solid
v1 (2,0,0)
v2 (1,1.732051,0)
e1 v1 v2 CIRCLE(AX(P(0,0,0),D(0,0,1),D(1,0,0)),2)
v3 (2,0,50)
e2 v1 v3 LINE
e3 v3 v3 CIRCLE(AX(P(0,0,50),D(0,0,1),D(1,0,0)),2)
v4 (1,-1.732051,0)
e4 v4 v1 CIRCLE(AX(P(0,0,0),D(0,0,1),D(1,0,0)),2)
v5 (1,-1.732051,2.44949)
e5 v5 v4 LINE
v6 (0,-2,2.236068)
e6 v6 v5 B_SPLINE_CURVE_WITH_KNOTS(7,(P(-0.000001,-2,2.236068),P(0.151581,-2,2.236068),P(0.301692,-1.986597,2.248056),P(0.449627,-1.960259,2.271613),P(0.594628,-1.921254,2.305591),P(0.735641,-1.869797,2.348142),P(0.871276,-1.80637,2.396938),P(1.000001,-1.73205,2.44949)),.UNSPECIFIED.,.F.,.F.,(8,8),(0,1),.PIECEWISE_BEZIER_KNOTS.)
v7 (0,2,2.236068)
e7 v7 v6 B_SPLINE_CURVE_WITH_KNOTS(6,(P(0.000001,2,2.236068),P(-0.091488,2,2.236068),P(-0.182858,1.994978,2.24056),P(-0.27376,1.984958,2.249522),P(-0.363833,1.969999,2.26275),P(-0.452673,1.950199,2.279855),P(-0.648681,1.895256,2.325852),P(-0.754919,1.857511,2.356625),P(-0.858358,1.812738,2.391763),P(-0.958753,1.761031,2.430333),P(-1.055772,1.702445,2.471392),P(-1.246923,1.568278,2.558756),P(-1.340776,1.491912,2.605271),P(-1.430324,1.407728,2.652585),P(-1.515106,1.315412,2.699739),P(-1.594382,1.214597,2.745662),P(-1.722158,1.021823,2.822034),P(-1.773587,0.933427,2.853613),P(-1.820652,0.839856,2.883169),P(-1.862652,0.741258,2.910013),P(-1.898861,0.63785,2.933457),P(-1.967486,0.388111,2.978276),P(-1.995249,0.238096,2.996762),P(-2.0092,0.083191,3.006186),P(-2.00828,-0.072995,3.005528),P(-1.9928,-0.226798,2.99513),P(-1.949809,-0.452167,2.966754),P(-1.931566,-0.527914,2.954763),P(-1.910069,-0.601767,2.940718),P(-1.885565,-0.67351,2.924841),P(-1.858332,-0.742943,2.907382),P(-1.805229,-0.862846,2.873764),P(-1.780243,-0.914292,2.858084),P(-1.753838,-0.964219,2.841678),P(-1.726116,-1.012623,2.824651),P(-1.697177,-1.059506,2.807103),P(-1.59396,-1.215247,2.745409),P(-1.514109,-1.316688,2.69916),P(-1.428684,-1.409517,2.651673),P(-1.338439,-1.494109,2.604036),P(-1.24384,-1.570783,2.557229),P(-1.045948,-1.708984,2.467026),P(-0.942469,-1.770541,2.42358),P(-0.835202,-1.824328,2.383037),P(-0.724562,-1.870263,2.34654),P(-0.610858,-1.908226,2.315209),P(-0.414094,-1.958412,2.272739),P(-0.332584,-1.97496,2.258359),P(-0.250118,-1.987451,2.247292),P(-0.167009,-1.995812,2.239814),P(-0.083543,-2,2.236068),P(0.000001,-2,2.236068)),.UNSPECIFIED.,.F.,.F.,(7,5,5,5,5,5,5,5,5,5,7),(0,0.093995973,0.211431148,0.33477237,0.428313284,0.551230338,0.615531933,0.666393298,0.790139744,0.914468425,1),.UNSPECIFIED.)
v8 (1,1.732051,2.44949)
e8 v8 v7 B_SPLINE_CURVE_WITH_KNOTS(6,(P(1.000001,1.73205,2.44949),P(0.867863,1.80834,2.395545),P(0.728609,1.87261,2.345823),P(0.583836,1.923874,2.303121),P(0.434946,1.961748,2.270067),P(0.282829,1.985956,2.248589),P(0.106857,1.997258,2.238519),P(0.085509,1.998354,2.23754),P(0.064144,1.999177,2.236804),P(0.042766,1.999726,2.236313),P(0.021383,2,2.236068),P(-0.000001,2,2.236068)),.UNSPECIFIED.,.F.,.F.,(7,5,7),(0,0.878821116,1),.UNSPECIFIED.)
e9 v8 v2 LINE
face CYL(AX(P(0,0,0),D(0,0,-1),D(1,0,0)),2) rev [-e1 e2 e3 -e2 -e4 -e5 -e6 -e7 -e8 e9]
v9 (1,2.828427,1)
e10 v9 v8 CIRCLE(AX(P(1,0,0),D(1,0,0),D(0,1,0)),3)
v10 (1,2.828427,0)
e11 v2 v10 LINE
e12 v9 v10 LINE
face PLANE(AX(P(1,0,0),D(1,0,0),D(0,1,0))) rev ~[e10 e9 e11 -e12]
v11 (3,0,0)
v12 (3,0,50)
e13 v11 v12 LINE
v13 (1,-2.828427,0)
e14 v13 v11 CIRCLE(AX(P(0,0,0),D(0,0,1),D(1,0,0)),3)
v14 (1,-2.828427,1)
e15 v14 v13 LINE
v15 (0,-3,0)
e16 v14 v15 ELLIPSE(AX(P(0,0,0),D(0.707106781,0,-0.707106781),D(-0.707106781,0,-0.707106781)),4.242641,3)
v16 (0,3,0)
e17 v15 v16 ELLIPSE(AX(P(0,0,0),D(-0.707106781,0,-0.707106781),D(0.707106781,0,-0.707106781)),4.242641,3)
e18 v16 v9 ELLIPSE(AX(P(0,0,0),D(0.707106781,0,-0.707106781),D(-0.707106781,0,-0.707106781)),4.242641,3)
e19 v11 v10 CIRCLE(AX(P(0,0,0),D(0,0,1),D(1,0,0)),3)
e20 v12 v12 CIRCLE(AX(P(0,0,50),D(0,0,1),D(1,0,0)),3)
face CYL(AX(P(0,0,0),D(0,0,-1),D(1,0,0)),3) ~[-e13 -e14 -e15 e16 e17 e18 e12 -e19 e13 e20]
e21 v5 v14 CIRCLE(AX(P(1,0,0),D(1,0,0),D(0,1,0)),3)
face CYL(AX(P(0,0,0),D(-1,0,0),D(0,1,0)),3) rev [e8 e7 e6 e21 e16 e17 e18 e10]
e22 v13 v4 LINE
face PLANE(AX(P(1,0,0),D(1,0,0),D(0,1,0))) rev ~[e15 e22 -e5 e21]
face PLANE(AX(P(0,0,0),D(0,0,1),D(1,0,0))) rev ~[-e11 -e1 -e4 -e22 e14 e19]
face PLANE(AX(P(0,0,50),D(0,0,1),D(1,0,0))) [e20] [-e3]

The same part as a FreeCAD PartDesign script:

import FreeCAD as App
import Part
import Sketcher

V = App.Vector

doc = App.newDocument("Part")
body = doc.addObject("PartDesign::Body", "Body")

# Sketch on XY plane
sketch1 = doc.addObject("Sketcher::SketchObject", "Sketch")
body.addObject(sketch1)
sketch1.AttachmentSupport = (doc.XY_Plane, [""])
sketch1.MapMode = "FlatFace"
sketch1.addGeometry(Part.Circle(V(0, 0, 0), V(0, 0, 1), 3), False)
sketch1.addGeometry(Part.Circle(V(0, 0, 0), V(0, 0, 1), 2), False)
sketch1.addConstraint(Sketcher.Constraint("Coincident", 0, 3, -1, 1))
sketch1.addConstraint(Sketcher.Constraint("Coincident", 1, 3, -1, 1))
sketch1.addConstraint(Sketcher.Constraint("Diameter", 0, 6.0))
sketch1.addConstraint(Sketcher.Constraint("Diameter", 1, 4.0))
pad1 = doc.addObject("PartDesign::Pad", "Pad")
body.addObject(pad1)
pad1.Profile = sketch1
pad1.Length = 50

# Sketch on YZ plane
sketch2 = doc.addObject("Sketcher::SketchObject", "Sketch001")
body.addObject(sketch2)
sketch2.AttachmentSupport = (doc.YZ_Plane, [""])
sketch2.MapMode = "FlatFace"
sketch2.addGeometry(Part.Circle(V(0, 0, 0), V(0, 0, 1), 3), False)
sketch2.addConstraint(Sketcher.Constraint("Coincident", 0, 3, -1, 1))
sketch2.addConstraint(Sketcher.Constraint("Diameter", 0, 6.0))
pocket1 = doc.addObject("PartDesign::Pocket", "Pocket")
body.addObject(pocket1)
pocket1.Profile = sketch2
pocket1.Type = "TwoLengths"
pocket1.Length = 25
pocket1.Length2 = 1

doc.recompute()
